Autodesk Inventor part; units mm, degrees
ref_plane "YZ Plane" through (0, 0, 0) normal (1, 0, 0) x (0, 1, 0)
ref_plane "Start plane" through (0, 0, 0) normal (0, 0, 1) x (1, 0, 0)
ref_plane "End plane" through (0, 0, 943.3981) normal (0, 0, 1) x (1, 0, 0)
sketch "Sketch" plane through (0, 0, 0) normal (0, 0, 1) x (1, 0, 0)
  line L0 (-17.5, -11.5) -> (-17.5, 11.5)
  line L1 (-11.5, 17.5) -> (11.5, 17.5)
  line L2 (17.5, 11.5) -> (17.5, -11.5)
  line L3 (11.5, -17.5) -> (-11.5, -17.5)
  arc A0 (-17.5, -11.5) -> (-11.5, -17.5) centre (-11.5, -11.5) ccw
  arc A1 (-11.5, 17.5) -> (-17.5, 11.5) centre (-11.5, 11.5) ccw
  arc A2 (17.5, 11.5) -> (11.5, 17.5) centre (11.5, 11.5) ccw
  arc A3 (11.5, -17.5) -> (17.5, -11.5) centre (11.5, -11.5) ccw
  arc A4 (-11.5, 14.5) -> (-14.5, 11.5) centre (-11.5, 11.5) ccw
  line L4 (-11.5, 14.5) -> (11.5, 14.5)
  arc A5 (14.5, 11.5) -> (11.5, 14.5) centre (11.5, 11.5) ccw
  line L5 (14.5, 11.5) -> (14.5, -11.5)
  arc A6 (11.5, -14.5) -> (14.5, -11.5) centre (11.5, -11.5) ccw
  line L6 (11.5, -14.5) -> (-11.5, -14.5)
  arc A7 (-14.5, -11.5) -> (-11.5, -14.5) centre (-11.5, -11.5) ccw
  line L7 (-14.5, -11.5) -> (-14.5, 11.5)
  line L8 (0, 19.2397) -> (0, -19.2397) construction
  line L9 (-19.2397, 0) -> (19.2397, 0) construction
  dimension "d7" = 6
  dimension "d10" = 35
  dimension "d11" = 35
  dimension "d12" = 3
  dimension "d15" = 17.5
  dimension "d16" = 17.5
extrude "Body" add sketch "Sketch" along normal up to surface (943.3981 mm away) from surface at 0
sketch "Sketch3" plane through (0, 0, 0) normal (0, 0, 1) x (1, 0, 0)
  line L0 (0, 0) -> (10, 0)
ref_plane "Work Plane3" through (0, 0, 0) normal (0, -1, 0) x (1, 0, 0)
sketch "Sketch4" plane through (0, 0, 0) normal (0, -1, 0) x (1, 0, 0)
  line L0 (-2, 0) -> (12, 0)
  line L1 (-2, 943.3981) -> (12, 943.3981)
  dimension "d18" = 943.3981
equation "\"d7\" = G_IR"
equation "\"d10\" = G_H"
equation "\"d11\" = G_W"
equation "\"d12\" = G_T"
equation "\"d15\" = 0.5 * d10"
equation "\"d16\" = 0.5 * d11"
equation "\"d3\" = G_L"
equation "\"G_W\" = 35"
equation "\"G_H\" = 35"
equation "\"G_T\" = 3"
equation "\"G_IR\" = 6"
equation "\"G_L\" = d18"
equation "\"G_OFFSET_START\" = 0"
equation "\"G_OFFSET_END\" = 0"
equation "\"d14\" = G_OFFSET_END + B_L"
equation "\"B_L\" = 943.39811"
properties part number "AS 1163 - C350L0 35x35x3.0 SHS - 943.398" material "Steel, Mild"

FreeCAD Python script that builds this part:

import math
import FreeCAD as App
import Part
import Sketcher
from FreeCAD import Vector

doc = App.newDocument("Part")
params = doc.addObject("Spreadsheet::Sheet", "Params")
for row, (alias, value) in enumerate([
    ("sketch1_radius", "6 mm"),
    ("sketch1_radius2", "3 mm"),
    ("pad1_length", "943.3981 mm"),
], start=1):
    params.set(f"A{row}", alias)
    params.set(f"B{row}", "=" + value)
    params.setAlias(f"B{row}", alias)

body = doc.addObject("PartDesign::Body", "Body")

# Sketch on XY plane
sketch1 = body.newObject("Sketcher::SketchObject", "Sketch")
sketch1.AttachmentSupport = (doc.getObject("XY_Plane"), [""])
sketch1.MapMode = "FlatFace"
sketch1.addGeometry(Part.LineSegment(Vector(-17.5, 11.5, 0), Vector(-17.5, -11.5, 0)), False)
sketch1.addGeometry(Part.ArcOfCircle(Part.Circle(Vector(-11.5, -11.5, 0), Vector(0, 0, 1), 6), math.radians(180), math.radians(270)), False)
sketch1.addGeometry(Part.LineSegment(Vector(-11.5, -17.5, 0), Vector(11.5, -17.5, 0)), False)
sketch1.addGeometry(Part.ArcOfCircle(Part.Circle(Vector(11.5, -11.5, 0), Vector(0, 0, 1), 6), math.radians(-90), math.radians(0)), False)
sketch1.addGeometry(Part.LineSegment(Vector(17.5, -11.5, 0), Vector(17.5, 11.5, 0)), False)
sketch1.addGeometry(Part.ArcOfCircle(Part.Circle(Vector(11.5, 11.5, 0), Vector(0, 0, 1), 6), math.radians(0), math.radians(90)), False)
sketch1.addGeometry(Part.LineSegment(Vector(11.5, 17.5, 0), Vector(-11.5, 17.5, 0)), False)
sketch1.addGeometry(Part.ArcOfCircle(Part.Circle(Vector(-11.5, 11.5, 0), Vector(0, 0, 1), 6), math.radians(90), math.radians(180)), False)
sketch1.addGeometry(Part.ArcOfCircle(Part.Circle(Vector(-11.5, 11.5, 0), Vector(0, 0, 1), 3), math.radians(90), math.radians(180)), False)
sketch1.addGeometry(Part.LineSegment(Vector(-11.5, 14.5, 0), Vector(11.5, 14.5, 0)), False)
sketch1.addGeometry(Part.ArcOfCircle(Part.Circle(Vector(11.5, 11.5, 0), Vector(0, 0, 1), 3), math.radians(0), math.radians(90)), False)
sketch1.addGeometry(Part.LineSegment(Vector(14.5, 11.5, 0), Vector(14.5, -11.5, 0)), False)
sketch1.addGeometry(Part.ArcOfCircle(Part.Circle(Vector(11.5, -11.5, 0), Vector(0, 0, 1), 3), math.radians(-90), math.radians(0)), False)
sketch1.addGeometry(Part.LineSegment(Vector(11.5, -14.5, 0), Vector(-11.5, -14.5, 0)), False)
sketch1.addGeometry(Part.ArcOfCircle(Part.Circle(Vector(-11.5, -11.5, 0), Vector(0, 0, 1), 3), math.radians(180), math.radians(270)), False)
sketch1.addGeometry(Part.LineSegment(Vector(-14.5, -11.5, 0), Vector(-14.5, 11.5, 0)), False)
sketch1.addConstraint(Sketcher.Constraint("Tangent", 0, 2, 1, 1))
sketch1.addConstraint(Sketcher.Constraint("Tangent", 1, 2, 2, 1))
sketch1.addConstraint(Sketcher.Constraint("Tangent", 2, 2, 3, 1))
sketch1.addConstraint(Sketcher.Constraint("Tangent", 3, 2, 4, 1))
sketch1.addConstraint(Sketcher.Constraint("Tangent", 4, 2, 5, 1))
sketch1.addConstraint(Sketcher.Constraint("Tangent", 5, 2, 6, 1))
sketch1.addConstraint(Sketcher.Constraint("Tangent", 6, 2, 7, 1))
sketch1.addConstraint(Sketcher.Constraint("Tangent", 7, 2, 0, 1))
sketch1.addConstraint(Sketcher.Constraint("Tangent", 8, 1, 9, 1))
sketch1.addConstraint(Sketcher.Constraint("Tangent", 9, 2, 10, 2))
sketch1.addConstraint(Sketcher.Constraint("Tangent", 10, 1, 11, 1))
sketch1.addConstraint(Sketcher.Constraint("Tangent", 11, 2, 12, 2))
sketch1.addConstraint(Sketcher.Constraint("Tangent", 12, 1, 13, 1))
sketch1.addConstraint(Sketcher.Constraint("Tangent", 13, 2, 14, 2))
sketch1.addConstraint(Sketcher.Constraint("Tangent", 14, 1, 15, 1))
sketch1.addConstraint(Sketcher.Constraint("Tangent", 15, 2, 8, 2))
sketch1.addConstraint(Sketcher.Constraint("Vertical", 0))
sketch1.addConstraint(Sketcher.Constraint("Horizontal", 2))
sketch1.addConstraint(Sketcher.Constraint("Vertical", 4))
sketch1.addConstraint(Sketcher.Constraint("Horizontal", 6))
sketch1.addConstraint(Sketcher.Constraint("Horizontal", 9))
sketch1.addConstraint(Sketcher.Constraint("Vertical", 11))
sketch1.addConstraint(Sketcher.Constraint("Horizontal", 13))
sketch1.addConstraint(Sketcher.Constraint("Vertical", 15))
sketch1.addConstraint(Sketcher.Constraint("Coincident", 8, 3, 7, 3))
sketch1.addConstraint(Sketcher.Constraint("Coincident", 10, 3, 5, 3))
sketch1.addConstraint(Sketcher.Constraint("Coincident", 12, 3, 3, 3))
sketch1.addConstraint(Sketcher.Constraint("Equal", 1, 3))
sketch1.addConstraint(Sketcher.Constraint("Equal", 3, 5))
sketch1.addConstraint(Sketcher.Constraint("Equal", 5, 7))
sketch1.addConstraint(Sketcher.Constraint("Equal", 12, 14))
sketch1.addConstraint(Sketcher.Constraint("Symmetric", 1, 3, 5, 3, -1, 1))
sketch1.addConstraint(Sketcher.Constraint("Equal", 13, 0))
sketch1.addConstraint(Sketcher.Constraint("Radius", 1, 6.0))
sketch1.addConstraint(Sketcher.Constraint("Radius", 8, 3.0))
sketch1.addConstraint(Sketcher.Constraint("DistanceX", 0, 2, -1, 1, 17.5))
sketch1.setExpression("Constraints[33]", "Params.sketch1_radius")
sketch1.setExpression("Constraints[34]", "Params.sketch1_radius2")
pad1 = body.newObject("PartDesign::Pad", "Pad")
pad1.Profile = sketch1
pad1.setExpression("Length", "Params.pad1_length")

doc.recompute()
